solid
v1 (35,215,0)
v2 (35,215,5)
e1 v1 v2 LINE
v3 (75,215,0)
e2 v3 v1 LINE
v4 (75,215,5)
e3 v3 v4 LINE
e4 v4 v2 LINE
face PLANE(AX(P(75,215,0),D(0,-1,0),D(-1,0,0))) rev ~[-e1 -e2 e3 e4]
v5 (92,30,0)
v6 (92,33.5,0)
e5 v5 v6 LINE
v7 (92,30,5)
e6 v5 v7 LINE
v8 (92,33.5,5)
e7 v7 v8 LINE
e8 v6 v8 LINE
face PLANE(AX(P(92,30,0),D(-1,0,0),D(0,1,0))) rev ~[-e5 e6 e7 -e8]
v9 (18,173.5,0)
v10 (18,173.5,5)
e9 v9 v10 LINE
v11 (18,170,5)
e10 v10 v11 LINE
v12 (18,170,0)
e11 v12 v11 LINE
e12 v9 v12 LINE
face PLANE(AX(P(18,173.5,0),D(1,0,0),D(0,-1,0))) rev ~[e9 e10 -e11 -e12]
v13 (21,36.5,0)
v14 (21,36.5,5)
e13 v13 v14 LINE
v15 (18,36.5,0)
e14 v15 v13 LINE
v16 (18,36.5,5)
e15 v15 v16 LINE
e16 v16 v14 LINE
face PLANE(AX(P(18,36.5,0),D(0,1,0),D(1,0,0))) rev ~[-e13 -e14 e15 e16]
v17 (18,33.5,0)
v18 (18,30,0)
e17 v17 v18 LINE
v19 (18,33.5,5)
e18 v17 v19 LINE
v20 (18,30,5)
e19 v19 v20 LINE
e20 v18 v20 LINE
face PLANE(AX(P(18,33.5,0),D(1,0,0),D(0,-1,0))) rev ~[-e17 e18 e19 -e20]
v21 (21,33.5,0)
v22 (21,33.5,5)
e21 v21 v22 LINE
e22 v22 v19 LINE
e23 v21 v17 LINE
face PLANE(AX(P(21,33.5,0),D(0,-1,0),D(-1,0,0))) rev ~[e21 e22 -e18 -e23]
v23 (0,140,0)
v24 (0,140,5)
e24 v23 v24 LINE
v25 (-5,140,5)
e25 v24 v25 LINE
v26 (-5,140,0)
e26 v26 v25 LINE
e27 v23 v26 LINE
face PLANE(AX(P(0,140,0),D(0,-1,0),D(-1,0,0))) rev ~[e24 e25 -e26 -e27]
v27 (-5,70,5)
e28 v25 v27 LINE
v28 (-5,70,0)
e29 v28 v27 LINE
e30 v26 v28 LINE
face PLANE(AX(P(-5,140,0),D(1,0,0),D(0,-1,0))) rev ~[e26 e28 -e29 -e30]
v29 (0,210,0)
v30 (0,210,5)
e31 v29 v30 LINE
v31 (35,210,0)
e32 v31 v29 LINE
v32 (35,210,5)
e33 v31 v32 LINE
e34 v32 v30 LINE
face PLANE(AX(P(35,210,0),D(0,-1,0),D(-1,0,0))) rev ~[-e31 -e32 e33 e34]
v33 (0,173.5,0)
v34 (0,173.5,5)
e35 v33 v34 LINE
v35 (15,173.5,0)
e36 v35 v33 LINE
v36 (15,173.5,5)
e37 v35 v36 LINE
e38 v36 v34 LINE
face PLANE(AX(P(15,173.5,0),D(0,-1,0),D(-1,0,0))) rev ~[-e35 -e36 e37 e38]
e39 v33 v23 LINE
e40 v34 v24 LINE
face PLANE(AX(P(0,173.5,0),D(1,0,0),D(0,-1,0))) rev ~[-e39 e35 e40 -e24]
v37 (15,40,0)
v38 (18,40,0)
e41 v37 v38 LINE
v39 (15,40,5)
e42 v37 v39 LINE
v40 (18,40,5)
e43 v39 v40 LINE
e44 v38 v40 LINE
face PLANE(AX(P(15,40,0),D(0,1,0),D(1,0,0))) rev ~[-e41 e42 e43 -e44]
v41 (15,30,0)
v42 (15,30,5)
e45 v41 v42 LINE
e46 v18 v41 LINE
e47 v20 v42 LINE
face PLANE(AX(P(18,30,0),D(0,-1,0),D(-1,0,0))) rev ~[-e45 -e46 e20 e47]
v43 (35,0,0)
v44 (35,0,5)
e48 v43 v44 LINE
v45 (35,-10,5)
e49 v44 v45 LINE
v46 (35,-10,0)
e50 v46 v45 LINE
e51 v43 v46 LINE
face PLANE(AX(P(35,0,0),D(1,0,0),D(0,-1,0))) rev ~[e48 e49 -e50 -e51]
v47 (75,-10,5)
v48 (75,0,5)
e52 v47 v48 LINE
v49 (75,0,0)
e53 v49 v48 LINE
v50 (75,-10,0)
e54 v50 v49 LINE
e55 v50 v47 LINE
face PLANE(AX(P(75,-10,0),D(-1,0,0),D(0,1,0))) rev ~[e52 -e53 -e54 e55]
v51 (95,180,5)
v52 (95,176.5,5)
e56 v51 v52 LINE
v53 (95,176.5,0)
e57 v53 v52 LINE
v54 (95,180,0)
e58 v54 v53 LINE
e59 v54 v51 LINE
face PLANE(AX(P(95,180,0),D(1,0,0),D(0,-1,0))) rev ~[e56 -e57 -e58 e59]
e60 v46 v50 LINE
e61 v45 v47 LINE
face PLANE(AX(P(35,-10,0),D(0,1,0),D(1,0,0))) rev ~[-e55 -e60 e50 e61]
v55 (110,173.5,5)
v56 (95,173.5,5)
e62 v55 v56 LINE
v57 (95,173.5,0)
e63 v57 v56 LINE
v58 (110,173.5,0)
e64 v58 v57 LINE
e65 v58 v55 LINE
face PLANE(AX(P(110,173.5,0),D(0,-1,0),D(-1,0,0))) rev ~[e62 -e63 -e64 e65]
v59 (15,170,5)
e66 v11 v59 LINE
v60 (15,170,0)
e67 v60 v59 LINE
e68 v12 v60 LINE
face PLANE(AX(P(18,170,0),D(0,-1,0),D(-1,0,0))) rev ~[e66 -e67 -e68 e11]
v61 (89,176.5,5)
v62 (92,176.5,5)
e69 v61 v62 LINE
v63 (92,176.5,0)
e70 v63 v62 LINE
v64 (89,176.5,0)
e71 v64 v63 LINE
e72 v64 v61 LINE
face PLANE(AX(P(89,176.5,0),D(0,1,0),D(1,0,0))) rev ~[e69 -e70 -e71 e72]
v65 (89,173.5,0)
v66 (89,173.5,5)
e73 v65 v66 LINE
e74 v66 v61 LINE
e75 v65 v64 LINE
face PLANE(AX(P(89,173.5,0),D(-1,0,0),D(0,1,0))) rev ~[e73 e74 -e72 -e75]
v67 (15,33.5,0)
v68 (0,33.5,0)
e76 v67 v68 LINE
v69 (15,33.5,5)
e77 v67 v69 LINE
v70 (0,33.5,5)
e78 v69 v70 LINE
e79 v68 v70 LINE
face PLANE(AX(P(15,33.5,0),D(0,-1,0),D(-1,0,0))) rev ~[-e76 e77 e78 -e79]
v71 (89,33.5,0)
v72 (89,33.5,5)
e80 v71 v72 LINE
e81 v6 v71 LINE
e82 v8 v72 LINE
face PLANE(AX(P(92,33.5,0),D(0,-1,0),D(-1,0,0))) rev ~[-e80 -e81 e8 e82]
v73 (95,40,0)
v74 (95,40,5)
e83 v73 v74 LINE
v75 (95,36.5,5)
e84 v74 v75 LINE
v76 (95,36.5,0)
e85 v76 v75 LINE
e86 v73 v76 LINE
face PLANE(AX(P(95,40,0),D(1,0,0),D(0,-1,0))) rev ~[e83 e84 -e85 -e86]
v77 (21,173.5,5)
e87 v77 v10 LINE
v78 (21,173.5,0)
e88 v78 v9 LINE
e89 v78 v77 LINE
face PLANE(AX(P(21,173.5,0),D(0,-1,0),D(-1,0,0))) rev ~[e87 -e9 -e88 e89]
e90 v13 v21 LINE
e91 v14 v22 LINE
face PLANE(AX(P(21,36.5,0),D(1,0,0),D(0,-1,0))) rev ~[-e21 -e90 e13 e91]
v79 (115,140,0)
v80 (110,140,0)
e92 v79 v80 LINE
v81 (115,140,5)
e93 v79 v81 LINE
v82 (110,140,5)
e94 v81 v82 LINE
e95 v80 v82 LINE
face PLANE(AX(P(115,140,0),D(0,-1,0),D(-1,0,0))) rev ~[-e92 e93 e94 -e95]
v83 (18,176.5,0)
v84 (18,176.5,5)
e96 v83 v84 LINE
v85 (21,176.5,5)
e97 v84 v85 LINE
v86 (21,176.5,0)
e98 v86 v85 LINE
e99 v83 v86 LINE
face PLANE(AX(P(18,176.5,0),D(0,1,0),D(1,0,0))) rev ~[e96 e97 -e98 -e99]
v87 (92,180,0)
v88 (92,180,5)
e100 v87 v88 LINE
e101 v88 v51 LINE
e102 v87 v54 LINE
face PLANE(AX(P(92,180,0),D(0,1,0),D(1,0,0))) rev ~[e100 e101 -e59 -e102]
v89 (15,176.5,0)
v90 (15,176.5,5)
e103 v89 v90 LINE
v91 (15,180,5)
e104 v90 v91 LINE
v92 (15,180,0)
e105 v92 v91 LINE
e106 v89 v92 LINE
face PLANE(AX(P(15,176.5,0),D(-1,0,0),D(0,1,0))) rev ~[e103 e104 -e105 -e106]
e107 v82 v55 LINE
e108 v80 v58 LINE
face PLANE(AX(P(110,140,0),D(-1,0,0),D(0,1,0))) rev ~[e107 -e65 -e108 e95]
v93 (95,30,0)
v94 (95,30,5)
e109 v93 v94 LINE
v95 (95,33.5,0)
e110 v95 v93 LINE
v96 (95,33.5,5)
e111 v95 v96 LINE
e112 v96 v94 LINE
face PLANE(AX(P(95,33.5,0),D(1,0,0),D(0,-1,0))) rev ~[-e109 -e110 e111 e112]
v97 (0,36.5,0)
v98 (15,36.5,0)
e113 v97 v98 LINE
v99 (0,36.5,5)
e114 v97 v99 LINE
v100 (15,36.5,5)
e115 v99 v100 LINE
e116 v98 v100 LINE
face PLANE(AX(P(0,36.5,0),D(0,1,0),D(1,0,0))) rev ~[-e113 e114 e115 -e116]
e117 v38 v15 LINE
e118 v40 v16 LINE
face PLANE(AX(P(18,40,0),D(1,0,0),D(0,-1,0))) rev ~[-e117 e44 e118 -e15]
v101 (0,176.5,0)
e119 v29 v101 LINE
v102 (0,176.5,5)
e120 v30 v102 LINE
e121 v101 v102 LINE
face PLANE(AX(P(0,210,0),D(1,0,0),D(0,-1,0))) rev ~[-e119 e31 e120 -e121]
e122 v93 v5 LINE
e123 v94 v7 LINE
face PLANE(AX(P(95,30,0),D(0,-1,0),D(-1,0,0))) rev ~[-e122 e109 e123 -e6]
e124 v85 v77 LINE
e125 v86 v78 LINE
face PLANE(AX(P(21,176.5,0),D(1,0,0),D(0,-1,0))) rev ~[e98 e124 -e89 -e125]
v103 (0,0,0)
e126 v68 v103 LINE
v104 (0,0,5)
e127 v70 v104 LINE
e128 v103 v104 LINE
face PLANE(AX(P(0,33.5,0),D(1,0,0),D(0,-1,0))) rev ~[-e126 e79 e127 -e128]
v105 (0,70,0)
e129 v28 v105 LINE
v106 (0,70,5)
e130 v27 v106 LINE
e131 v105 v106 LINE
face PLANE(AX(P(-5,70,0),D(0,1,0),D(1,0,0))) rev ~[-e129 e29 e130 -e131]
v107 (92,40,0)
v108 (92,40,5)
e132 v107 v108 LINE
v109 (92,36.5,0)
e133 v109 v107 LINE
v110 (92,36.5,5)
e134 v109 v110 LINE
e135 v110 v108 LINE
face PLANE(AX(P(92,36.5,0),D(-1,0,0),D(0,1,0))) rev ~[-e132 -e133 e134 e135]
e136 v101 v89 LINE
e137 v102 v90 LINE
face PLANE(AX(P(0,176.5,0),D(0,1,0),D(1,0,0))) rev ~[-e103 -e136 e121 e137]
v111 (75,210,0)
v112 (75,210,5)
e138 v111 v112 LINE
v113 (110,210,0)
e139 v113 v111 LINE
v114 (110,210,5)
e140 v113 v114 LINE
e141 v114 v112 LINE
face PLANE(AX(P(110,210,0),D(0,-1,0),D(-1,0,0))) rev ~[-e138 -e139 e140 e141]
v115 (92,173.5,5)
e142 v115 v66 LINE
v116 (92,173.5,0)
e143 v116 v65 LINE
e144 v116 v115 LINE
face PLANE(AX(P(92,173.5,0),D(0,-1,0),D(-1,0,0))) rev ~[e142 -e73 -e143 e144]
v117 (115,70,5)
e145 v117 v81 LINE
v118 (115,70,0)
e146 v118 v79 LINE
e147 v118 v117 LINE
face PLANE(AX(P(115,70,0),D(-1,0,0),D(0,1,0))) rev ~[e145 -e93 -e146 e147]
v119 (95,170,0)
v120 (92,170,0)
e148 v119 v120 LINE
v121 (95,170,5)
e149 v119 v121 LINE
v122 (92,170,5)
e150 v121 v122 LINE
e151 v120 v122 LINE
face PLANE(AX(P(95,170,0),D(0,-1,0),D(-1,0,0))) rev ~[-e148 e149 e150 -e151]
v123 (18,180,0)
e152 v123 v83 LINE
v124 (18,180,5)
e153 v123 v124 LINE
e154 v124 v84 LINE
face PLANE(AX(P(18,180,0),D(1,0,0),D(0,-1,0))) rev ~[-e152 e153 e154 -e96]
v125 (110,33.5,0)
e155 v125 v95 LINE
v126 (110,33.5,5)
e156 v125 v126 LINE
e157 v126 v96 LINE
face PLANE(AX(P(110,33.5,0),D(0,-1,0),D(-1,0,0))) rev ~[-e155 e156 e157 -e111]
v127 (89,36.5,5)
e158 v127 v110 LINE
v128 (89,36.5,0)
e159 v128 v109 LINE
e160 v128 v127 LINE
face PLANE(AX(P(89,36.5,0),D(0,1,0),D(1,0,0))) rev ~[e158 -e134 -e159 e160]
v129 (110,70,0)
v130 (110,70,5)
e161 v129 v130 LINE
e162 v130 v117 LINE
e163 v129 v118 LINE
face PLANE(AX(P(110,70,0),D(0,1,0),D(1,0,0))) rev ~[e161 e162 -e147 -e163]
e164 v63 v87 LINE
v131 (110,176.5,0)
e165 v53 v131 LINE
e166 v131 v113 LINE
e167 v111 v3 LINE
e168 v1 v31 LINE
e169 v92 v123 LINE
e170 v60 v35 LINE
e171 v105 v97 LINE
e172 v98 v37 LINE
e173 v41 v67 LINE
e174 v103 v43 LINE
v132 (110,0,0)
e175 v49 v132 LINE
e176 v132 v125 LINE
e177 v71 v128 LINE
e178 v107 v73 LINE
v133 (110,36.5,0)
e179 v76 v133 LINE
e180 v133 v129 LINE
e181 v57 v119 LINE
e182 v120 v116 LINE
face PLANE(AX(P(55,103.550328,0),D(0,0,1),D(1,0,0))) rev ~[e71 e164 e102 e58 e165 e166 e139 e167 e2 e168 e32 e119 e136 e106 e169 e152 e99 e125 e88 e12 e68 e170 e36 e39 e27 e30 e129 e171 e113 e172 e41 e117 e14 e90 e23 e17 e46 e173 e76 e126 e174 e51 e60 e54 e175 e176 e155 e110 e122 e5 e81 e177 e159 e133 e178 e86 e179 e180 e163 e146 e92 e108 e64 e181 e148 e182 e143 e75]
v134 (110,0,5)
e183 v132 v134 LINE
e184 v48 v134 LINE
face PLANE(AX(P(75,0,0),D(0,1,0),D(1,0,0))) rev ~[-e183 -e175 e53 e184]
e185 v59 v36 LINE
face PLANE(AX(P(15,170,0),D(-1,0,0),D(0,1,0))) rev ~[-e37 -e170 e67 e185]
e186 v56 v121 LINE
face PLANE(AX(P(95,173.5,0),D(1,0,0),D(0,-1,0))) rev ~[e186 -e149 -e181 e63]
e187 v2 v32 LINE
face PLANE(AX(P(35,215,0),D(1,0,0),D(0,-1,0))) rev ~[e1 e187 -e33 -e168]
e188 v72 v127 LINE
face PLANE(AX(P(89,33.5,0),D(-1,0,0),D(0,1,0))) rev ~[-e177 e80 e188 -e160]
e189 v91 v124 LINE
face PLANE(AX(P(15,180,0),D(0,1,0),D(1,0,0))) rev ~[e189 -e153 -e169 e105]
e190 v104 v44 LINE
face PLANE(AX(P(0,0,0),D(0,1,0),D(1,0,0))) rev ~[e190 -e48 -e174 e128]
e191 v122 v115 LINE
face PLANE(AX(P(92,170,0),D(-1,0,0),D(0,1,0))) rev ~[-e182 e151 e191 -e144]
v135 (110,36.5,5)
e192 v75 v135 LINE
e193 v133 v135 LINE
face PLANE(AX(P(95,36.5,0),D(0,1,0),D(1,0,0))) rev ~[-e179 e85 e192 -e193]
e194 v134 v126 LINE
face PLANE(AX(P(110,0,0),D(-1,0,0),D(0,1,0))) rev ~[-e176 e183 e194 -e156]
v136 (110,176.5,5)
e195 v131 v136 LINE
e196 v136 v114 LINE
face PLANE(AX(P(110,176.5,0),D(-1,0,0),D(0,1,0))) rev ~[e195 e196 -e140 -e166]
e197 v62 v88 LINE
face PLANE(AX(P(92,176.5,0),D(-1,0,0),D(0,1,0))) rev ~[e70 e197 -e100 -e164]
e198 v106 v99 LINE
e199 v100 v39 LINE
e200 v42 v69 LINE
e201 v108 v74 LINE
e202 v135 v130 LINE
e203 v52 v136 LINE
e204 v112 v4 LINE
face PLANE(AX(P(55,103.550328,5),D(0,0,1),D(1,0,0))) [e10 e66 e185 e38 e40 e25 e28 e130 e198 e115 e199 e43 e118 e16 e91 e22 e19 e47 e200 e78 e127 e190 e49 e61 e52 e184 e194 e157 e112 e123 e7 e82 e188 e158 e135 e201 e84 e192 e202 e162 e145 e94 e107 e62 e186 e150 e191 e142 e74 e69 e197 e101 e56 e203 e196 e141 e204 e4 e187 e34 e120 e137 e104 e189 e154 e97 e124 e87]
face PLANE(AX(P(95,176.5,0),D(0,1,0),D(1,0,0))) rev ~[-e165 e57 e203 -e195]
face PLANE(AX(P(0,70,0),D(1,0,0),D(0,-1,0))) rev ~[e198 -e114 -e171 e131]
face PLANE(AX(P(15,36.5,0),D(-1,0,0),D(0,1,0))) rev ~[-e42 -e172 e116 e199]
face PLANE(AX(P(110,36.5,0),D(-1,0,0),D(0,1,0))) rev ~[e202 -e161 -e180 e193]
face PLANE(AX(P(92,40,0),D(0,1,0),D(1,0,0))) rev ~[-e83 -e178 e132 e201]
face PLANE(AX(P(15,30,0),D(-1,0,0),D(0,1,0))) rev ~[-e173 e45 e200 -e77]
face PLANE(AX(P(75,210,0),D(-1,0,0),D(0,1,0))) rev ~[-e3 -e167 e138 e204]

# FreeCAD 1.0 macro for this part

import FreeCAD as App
import Part
import Sketcher

V = App.Vector
Q = App.Units.Quantity


def add_polygon(sketch, points):
    """Adds a closed chain of lines whose ends are joined by coincident constraints."""
    first, n = sketch.GeometryCount, len(points)
    for a, b in zip(points, points[1:] + points[:1]):
        sketch.addGeometry(Part.LineSegment(App.Vector(*a, 0), App.Vector(*b, 0)), False)
    for i in range(n):
        sketch.addConstraint(Sketcher.Constraint("Coincident", first + i, 2, first + (i + 1) % n, 1))

doc = App.newDocument("Part")
body = doc.addObject("PartDesign::Body", "Body")

# Sketch on XY plane
sketch1 = body.newObject("Sketcher::SketchObject", "Sketch")
sketch1.AttachmentSupport = (doc.getObject("XY_Plane"), [""])
sketch1.MapMode = "FlatFace"
add_polygon(sketch1, [(0, 0), (35, 0), (35, -10), (75, -10), (75, 0), (110, 0), (110, 33.5), (95, 33.5), (95, 30), (92, 30), (92, 33.5), (89, 33.5), (89, 36.5), (92, 36.5), (92, 40), (95, 40), (95, 36.5), (110, 36.5), (110, 70), (115, 70), (115, 140), (110, 140), (110, 173.5), (95, 173.5), (95, 170), (92, 170), (92, 173.5), (89, 173.5), (89, 176.5), (92, 176.5), (92, 180), (95, 180), (95, 176.5), (110, 176.5), (110, 210), (75, 210), (75, 215), (35, 215), (35, 210), (0, 210), (0, 176.5), (15, 176.5), (15, 180), (18, 180), (18, 176.5), (21, 176.5), (21, 173.5), (18, 173.5), (18, 170), (15, 170), (15, 173.5), (0, 173.5), (0, 140), (-5, 140), (-5, 70), (0, 70), (0, 36.5), (15, 36.5), (15, 40), (18, 40), (18, 36.5), (21, 36.5), (21, 33.5), (18, 33.5), (18, 30), (15, 30), (15, 33.5), (0, 33.5)])  # lines 0-67
sketch1.addConstraint([
    Sketcher.Constraint("Horizontal", 0),
    Sketcher.Constraint("Vertical", 1),
    Sketcher.Constraint("Horizontal", 2),
    Sketcher.Constraint("Vertical", 3),
    Sketcher.Constraint("Horizontal", 4),
    Sketcher.Constraint("Vertical", 5),
    Sketcher.Constraint("Horizontal", 6),
    Sketcher.Constraint("Vertical", 7),
    Sketcher.Constraint("Horizontal", 8),
    Sketcher.Constraint("Vertical", 9),
    Sketcher.Constraint("Horizontal", 10),
    Sketcher.Constraint("Vertical", 11),
    Sketcher.Constraint("Horizontal", 12),
    Sketcher.Constraint("Vertical", 13),
    Sketcher.Constraint("Horizontal", 14),
    Sketcher.Constraint("Vertical", 15),
    Sketcher.Constraint("Horizontal", 16),
    Sketcher.Constraint("Vertical", 17),
    Sketcher.Constraint("Horizontal", 18),
    Sketcher.Constraint("Vertical", 19),
    Sketcher.Constraint("Horizontal", 20),
    Sketcher.Constraint("Vertical", 21),
    Sketcher.Constraint("Horizontal", 22),
    Sketcher.Constraint("Vertical", 23),
    Sketcher.Constraint("Horizontal", 24),
    Sketcher.Constraint("Vertical", 25),
    Sketcher.Constraint("Horizontal", 26),
    Sketcher.Constraint("Vertical", 27),
    Sketcher.Constraint("Horizontal", 28),
    Sketcher.Constraint("Vertical", 29),
    Sketcher.Constraint("Horizontal", 30),
    Sketcher.Constraint("Vertical", 31),
    Sketcher.Constraint("Horizontal", 32),
    Sketcher.Constraint("Vertical", 33),
    Sketcher.Constraint("Horizontal", 34),
    Sketcher.Constraint("Vertical", 35),
    Sketcher.Constraint("Horizontal", 36),
    Sketcher.Constraint("Vertical", 37),
    Sketcher.Constraint("Horizontal", 38),
    Sketcher.Constraint("Vertical", 39),
    Sketcher.Constraint("Horizontal", 40),
    Sketcher.Constraint("Vertical", 41),
    Sketcher.Constraint("Horizontal", 42),
    Sketcher.Constraint("Vertical", 43),
    Sketcher.Constraint("Horizontal", 44),
    Sketcher.Constraint("Vertical", 45),
    Sketcher.Constraint("Horizontal", 46),
    Sketcher.Constraint("Vertical", 47),
    Sketcher.Constraint("Horizontal", 48),
    Sketcher.Constraint("Vertical", 49),
    Sketcher.Constraint("Horizontal", 50),
    Sketcher.Constraint("Vertical", 51),
    Sketcher.Constraint("Horizontal", 52),
    Sketcher.Constraint("Vertical", 53),
    Sketcher.Constraint("Horizontal", 54),
    Sketcher.Constraint("Vertical", 55),
    Sketcher.Constraint("Horizontal", 56),
    Sketcher.Constraint("Vertical", 57),
    Sketcher.Constraint("Horizontal", 58),
    Sketcher.Constraint("Vertical", 59),
    Sketcher.Constraint("Horizontal", 60),
    Sketcher.Constraint("Vertical", 61),
    Sketcher.Constraint("Horizontal", 62),
    Sketcher.Constraint("Vertical", 63),
    Sketcher.Constraint("Horizontal", 64),
    Sketcher.Constraint("Vertical", 65),
    Sketcher.Constraint("Horizontal", 66),
    Sketcher.Constraint("Vertical", 67),
    Sketcher.Constraint("Coincident", 67, 2, -1, 1),
    Sketcher.Constraint("PointOnObject", 3, 2, -1),
    Sketcher.Constraint("PointOnObject", 38, 2, -2),
    Sketcher.Constraint("PointOnObject", 50, 2, -2),
    Sketcher.Constraint("PointOnObject", 54, 2, -2),
    Sketcher.Constraint("Horizontal", 6, 2, 9, 2),
    Sketcher.Constraint("Horizontal", 12, 2, 15, 2),
    Sketcher.Constraint("Horizontal", 22, 2, 25, 2),
    Sketcher.Constraint("Horizontal", 28, 2, 31, 2),
    Sketcher.Constraint("Horizontal", 34, 2, 37, 2),
    Sketcher.Constraint("Horizontal", 32, 2, 39, 2),
    Sketcher.Constraint("Horizontal", 30, 2, 41, 2),
    Sketcher.Constraint("Horizontal", 40, 2, 43, 2),
    Sketcher.Constraint("Horizontal", 26, 2, 45, 2),
    Sketcher.Constraint("Horizontal", 24, 2, 47, 2),
    Sketcher.Constraint("Horizontal", 46, 2, 49, 2),
    Sketcher.Constraint("Horizontal", 20, 2, 51, 2),
    Sketcher.Constraint("Horizontal", 18, 2, 53, 2),
    Sketcher.Constraint("Horizontal", 16, 2, 55, 2),
    Sketcher.Constraint("Horizontal", 14, 2, 57, 2),
    Sketcher.Constraint("Horizontal", 56, 2, 59, 2),
    Sketcher.Constraint("Horizontal", 10, 2, 61, 2),
    Sketcher.Constraint("Horizontal", 8, 2, 63, 2),
    Sketcher.Constraint("Horizontal", 62, 2, 65, 2),
    Sketcher.Constraint("Vertical", 9, 2, 12, 2),
    Sketcher.Constraint("Vertical", 7, 2, 14, 2),
    Sketcher.Constraint("Vertical", 5, 2, 16, 2),
    Sketcher.Constraint("Vertical", 17, 2, 20, 2),
    Sketcher.Constraint("Vertical", 15, 2, 22, 2),
    Sketcher.Constraint("Vertical", 13, 2, 24, 2),
    Sketcher.Constraint("Vertical", 11, 2, 26, 2),
    Sketcher.Constraint("Vertical", 25, 2, 28, 2),
    Sketcher.Constraint("Vertical", 23, 2, 30, 2),
    Sketcher.Constraint("Vertical", 21, 2, 32, 2),
    Sketcher.Constraint("Vertical", 3, 2, 34, 2),
    Sketcher.Constraint("Vertical", 1, 2, 36, 2),
    Sketcher.Constraint("Vertical", 43, 2, 46, 2),
    Sketcher.Constraint("Vertical", 41, 2, 48, 2),
    Sketcher.Constraint("Vertical", 49, 2, 56, 2),
    Sketcher.Constraint("Vertical", 47, 2, 58, 2),
    Sketcher.Constraint("Vertical", 45, 2, 60, 2),
    Sketcher.Constraint("Vertical", 59, 2, 62, 2),
    Sketcher.Constraint("Vertical", 57, 2, 64, 2),
    Sketcher.Constraint("Equal", 0, 4),
    Sketcher.Constraint("Equal", 8, 10),
    Sketcher.Constraint("Equal", 32, 40),
    Sketcher.Constraint("Equal", 30, 42),
    Sketcher.Constraint("Equal", 42, 44),
    Sketcher.Constraint("Equal", 20, 52),
    Sketcher.Constraint("Equal", 64, 11),
    Sketcher.Constraint("Equal", 9, 13),
    Sketcher.Constraint("Equal", 5, 17),
    Sketcher.Constraint("Equal", 17, 21),
    Sketcher.Constraint("Equal", 15, 23),
    Sketcher.Constraint("Equal", 11, 27),
    Sketcher.Constraint("Equal", 25, 29),
    Sketcher.Constraint("Equal", 21, 33),
    Sketcher.Constraint("Equal", 54, 35),
    Sketcher.Constraint("DistanceX", 0, 1, 0, 2, Q("35 mm")),
    Sketcher.Constraint("DistanceX", 2, 1, 2, 2, Q("40 mm")),
    Sketcher.Constraint("DistanceX", 6, 2, 6, 1, Q("15 mm")),
    Sketcher.Constraint("DistanceX", 8, 2, 8, 1, Q("3 mm")),
    Sketcher.Constraint("DistanceX", 18, 1, 18, 2, Q("5 mm")),
    Sketcher.Constraint("DistanceY", 1, 2, 1, 1, Q("10 mm")),
    Sketcher.Constraint("DistanceY", 19, 1, 19, 2, Q("70 mm")),
    Sketcher.Constraint("DistanceY", 5, 1, 5, 2, Q("33.5 mm")),
    Sketcher.Constraint("DistanceY", 7, 2, 7, 1, Q("3.5 mm")),
])
pad1 = body.newObject("PartDesign::Pad", "Pad")
pad1.Profile = sketch1
pad1.Length = 5

doc.recompute()
